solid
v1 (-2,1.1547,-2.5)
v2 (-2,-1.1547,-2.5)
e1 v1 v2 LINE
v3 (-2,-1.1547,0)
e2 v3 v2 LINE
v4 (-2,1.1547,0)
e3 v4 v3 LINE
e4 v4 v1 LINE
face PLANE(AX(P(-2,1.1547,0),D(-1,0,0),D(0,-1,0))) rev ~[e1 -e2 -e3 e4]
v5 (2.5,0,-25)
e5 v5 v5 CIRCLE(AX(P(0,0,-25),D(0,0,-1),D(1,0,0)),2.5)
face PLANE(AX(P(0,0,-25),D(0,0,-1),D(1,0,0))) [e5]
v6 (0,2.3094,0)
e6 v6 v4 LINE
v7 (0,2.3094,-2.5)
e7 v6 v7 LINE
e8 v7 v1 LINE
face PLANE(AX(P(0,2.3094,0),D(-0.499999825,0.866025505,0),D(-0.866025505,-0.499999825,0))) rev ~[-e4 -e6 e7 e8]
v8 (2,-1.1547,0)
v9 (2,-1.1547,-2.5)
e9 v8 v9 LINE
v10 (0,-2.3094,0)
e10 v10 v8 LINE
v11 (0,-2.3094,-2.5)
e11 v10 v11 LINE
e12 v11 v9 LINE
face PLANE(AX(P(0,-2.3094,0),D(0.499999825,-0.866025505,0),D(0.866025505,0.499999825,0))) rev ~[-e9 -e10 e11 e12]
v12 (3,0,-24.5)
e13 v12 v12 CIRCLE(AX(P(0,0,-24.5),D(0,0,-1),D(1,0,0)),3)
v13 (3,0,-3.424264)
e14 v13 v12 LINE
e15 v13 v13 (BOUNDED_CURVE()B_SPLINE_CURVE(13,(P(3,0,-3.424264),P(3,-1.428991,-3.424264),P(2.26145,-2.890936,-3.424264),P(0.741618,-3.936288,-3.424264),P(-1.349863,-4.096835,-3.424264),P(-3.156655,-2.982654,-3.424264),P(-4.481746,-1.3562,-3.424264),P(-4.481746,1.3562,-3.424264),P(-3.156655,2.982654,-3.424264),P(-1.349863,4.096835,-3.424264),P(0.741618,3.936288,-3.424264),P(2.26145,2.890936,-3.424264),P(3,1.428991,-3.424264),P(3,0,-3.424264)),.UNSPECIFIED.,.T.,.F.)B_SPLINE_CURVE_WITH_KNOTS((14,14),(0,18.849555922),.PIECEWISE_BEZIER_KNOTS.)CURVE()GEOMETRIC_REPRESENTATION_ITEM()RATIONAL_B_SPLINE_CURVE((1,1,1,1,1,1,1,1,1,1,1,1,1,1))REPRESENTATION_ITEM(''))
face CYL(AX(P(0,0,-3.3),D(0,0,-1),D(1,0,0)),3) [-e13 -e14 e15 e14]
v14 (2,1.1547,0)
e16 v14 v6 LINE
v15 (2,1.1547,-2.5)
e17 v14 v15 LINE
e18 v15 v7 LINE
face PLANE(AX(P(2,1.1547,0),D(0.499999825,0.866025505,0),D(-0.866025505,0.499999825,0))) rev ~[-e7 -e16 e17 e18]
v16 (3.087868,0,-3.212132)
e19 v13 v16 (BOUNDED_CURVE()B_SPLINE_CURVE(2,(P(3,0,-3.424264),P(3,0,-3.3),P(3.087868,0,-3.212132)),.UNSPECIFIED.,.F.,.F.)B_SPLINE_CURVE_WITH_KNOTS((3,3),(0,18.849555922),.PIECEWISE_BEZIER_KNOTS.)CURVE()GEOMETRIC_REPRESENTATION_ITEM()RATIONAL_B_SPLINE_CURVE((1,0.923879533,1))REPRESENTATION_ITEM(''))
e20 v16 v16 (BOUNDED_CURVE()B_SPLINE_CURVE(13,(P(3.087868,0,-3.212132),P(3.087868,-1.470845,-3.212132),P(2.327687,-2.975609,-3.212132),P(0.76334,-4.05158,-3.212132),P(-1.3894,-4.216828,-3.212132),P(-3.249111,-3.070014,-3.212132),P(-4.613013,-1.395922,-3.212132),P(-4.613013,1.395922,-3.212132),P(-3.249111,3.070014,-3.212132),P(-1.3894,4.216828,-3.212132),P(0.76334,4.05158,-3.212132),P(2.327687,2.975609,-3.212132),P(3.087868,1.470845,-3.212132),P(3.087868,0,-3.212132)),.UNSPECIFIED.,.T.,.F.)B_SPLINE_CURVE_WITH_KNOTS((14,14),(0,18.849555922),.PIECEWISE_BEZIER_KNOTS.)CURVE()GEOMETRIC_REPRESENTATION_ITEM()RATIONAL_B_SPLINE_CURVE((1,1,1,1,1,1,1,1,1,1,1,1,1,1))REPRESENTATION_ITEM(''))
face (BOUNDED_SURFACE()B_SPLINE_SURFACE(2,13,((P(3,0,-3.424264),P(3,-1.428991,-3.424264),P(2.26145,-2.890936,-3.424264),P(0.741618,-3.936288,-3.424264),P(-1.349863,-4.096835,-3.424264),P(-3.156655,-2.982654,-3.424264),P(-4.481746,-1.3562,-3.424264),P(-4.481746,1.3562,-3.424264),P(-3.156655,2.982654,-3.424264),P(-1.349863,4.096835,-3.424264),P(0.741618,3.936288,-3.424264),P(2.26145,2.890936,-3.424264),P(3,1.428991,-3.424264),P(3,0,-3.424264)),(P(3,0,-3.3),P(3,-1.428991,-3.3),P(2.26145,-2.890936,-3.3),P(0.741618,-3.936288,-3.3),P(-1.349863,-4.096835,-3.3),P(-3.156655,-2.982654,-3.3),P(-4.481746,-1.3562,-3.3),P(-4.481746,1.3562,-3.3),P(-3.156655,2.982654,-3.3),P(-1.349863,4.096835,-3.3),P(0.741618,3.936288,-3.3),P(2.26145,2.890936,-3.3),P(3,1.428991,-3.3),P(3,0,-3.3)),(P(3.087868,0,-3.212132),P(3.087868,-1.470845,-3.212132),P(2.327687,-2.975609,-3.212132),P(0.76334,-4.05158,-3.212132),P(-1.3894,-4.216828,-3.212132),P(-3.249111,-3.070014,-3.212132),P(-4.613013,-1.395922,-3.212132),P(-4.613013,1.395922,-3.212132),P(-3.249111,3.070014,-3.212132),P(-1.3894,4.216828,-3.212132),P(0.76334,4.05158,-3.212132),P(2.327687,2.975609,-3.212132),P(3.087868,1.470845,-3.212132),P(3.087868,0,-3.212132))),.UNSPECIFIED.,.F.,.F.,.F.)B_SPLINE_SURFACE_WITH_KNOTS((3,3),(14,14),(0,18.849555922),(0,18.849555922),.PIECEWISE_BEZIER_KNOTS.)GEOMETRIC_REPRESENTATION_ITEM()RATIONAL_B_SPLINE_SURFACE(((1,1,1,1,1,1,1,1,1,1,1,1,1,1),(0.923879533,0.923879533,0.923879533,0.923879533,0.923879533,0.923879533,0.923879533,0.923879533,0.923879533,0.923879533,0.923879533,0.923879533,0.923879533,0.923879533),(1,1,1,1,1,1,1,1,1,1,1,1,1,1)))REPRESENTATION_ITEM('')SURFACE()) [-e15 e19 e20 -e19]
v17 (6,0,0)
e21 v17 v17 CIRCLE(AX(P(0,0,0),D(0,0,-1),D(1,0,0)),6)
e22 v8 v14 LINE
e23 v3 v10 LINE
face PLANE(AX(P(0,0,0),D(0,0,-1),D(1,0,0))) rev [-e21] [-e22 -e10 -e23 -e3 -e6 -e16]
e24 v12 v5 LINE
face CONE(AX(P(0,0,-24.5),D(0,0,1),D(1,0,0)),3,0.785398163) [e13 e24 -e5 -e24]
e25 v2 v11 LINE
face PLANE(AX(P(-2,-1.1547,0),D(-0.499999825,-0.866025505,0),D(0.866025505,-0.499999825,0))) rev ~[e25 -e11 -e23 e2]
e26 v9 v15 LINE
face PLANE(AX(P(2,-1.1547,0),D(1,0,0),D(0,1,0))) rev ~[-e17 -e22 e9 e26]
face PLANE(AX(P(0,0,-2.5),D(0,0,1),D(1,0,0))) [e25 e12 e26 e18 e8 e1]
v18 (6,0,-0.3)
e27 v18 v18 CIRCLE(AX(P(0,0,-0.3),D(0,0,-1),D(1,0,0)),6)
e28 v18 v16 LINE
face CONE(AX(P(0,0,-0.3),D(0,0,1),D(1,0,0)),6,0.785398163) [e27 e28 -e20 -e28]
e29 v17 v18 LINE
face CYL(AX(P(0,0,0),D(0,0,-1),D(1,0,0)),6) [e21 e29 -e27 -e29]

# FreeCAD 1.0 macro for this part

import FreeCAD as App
import Part
import Sketcher
Q = App.Units.Quantity


def edges_at(feature, points):
    """Names of the edges that pass closest to the given points."""
    edges = feature.Shape.Edges
    near = lambda p: min(range(len(edges)), key=lambda i: edges[i].distToShape(Part.Vertex(*p))[0])
    return sorted({f"Edge{near(p) + 1}" for p in points})

doc = App.newDocument("Part")
body = doc.addObject("PartDesign::Body", "Body")

sketch1 = doc.addObject("Sketcher::SketchObject", "Sketch")
body.addObject(sketch1)
sketch1.AttachmentSupport = (doc.XZ_Plane, [""])
sketch1.MapMode = "FlatFace"
sketch1.addGeometry([
    Part.LineSegment(App.Vector(3, -3.3, 0), App.Vector(3, -25, 0)),
    Part.LineSegment(App.Vector(3, -25, 0), App.Vector(0, -25, 0)),
    Part.LineSegment(App.Vector(0, -25, 0), App.Vector(0, 0, 0)),
    Part.LineSegment(App.Vector(0, 0, 0), App.Vector(6, 0, 0)),
    Part.LineSegment(App.Vector(6, 0, 0), App.Vector(6, -0.3, 0)),
    Part.LineSegment(App.Vector(6, -0.3, 0), App.Vector(3, -3.3, 0)),
], False)
sketch1.addConstraint([
    Sketcher.Constraint("Coincident", 0, 2, 1, 1),
    Sketcher.Constraint("Coincident", 1, 2, 2, 1),
    Sketcher.Constraint("Coincident", 2, 2, 3, 1),
    Sketcher.Constraint("Coincident", 3, 2, 4, 1),
    Sketcher.Constraint("Coincident", 4, 2, 5, 1),
    Sketcher.Constraint("Coincident", 5, 2, 0, 1),
    Sketcher.Constraint("Vertical", 0),
    Sketcher.Constraint("Horizontal", 1),
    Sketcher.Constraint("Vertical", 2),
    Sketcher.Constraint("Horizontal", 3),
    Sketcher.Constraint("Vertical", 4),
    Sketcher.Constraint("Coincident", 2, 2, -1, 1),
    Sketcher.Constraint("DistanceX", 1, 2, 1, 1, 3.0),
    Sketcher.Constraint("DistanceX", 3, 1, 3, 2, 6.0),
    Sketcher.Constraint("DistanceY", 2, 1, 2, 2, 25.0),
    Sketcher.Constraint("DistanceY", 4, 2, 4, 1, 0.3),
    Sketcher.Constraint("DistanceY", 5, 2, 4, 2, 3.0),
])
revolution = doc.addObject("PartDesign::Revolution", "Revolution")
body.addObject(revolution)
revolution.Profile = sketch1
revolution.ReferenceAxis = (sketch1, ["V_Axis"])
revolution.Angle = 360

sketch2 = doc.addObject("Sketcher::SketchObject", "Sketch001")
body.addObject(sketch2)
sketch2.AttachmentSupport = (doc.XY_Plane, [""])
sketch2.MapMode = "FlatFace"
sketch2.addGeometry([
    Part.LineSegment(App.Vector(0, 2.3094, 0), App.Vector(-2, 1.1547, 0)),
    Part.LineSegment(App.Vector(-2, 1.1547, 0), App.Vector(-2, -1.1547, 0)),
    Part.LineSegment(App.Vector(-2, -1.1547, 0), App.Vector(0, -2.3094, 0)),
    Part.LineSegment(App.Vector(0, -2.3094, 0), App.Vector(2, -1.1547, 0)),
    Part.LineSegment(App.Vector(2, -1.1547, 0), App.Vector(2, 1.1547, 0)),
    Part.LineSegment(App.Vector(2, 1.1547, 0), App.Vector(0, 2.3094, 0)),
], False)
sketch2.addConstraint([
    Sketcher.Constraint("Coincident", 0, 2, 1, 1),
    Sketcher.Constraint("Coincident", 1, 2, 2, 1),
    Sketcher.Constraint("Coincident", 2, 2, 3, 1),
    Sketcher.Constraint("Coincident", 3, 2, 4, 1),
    Sketcher.Constraint("Coincident", 4, 2, 5, 1),
    Sketcher.Constraint("Coincident", 5, 2, 0, 1),
    Sketcher.Constraint("Vertical", 1),
    Sketcher.Constraint("Vertical", 4),
    Sketcher.Constraint("Symmetric", 0, 2, 3, 2, -1, 1),
    Sketcher.Constraint("Symmetric", 2, 2, 5, 2, -1, 1),
    Sketcher.Constraint("PointOnObject", 2, 2, -2),
    Sketcher.Constraint("Parallel", 2, 5),
    Sketcher.Constraint("Horizontal", 1, 2, 3, 2),
    Sketcher.Constraint("DistanceX", 1, 2, 3, 2, 4.0),
    Sketcher.Constraint("Angle", 0, Q("-150 deg")),
    Sketcher.Constraint("DistanceY", 1, 2, 1, 1, 2.3094),
])
pocket1 = doc.addObject("PartDesign::Pocket", "Pocket")
body.addObject(pocket1)
pocket1.Profile = sketch2
pocket1.Length = 2.5
doc.recompute()

fillet = doc.addObject("PartDesign::Fillet", "Fillet")
body.addObject(fillet)
fillet.Base = (pocket1, edges_at(pocket1, [(-3, 0, -3.3)]))
fillet.Radius = 0.3
doc.recompute()

chamfer = doc.addObject("PartDesign::Chamfer", "Chamfer")
body.addObject(chamfer)
chamfer.Base = (fillet, edges_at(fillet, [(-3, 0, -25)]))
chamfer.Size = 0.5

doc.recompute()
